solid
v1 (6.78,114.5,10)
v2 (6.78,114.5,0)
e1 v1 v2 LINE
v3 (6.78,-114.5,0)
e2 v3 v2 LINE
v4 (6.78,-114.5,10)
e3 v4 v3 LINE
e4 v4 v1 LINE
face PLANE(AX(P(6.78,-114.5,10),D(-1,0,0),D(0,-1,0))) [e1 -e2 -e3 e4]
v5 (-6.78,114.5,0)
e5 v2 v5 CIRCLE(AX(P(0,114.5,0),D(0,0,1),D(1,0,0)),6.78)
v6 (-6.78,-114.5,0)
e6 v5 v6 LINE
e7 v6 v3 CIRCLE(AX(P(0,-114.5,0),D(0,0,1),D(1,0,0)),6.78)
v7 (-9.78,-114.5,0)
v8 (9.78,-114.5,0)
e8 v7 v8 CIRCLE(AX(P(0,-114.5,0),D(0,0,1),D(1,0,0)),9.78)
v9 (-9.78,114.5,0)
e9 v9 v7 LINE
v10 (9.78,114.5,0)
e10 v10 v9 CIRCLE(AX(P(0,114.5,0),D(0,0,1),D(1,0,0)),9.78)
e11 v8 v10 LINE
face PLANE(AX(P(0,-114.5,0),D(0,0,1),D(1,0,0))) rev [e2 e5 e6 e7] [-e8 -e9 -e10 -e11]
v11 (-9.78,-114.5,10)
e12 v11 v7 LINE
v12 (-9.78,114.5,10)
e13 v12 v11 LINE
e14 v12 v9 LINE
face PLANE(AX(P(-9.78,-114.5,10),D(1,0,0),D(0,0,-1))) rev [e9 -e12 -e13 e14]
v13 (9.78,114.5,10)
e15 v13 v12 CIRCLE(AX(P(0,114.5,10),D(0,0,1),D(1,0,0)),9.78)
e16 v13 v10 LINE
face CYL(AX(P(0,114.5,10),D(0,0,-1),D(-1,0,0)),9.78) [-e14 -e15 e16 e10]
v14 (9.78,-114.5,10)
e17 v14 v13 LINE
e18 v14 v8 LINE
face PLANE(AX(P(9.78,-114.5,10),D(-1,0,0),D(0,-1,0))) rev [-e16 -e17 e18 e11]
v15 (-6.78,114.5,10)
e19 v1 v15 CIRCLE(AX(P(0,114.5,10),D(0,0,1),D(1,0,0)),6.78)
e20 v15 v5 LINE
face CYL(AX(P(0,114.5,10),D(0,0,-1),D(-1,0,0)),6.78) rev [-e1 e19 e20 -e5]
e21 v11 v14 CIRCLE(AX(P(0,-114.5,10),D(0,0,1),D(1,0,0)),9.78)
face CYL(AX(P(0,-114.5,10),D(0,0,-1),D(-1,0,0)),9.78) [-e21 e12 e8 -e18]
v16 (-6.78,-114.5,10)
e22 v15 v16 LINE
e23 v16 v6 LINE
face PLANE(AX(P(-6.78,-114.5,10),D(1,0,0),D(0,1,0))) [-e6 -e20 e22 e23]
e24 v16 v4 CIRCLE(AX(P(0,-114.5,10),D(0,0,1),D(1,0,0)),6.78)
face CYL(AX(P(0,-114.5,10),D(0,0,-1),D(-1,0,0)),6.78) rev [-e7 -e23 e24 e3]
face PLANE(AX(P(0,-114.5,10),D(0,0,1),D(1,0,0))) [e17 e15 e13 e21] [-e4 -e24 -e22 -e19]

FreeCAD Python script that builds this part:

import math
import FreeCAD as App
import Part
import Sketcher

V = App.Vector
Q = App.Units.Quantity

doc = App.newDocument("Part")
body = doc.addObject("PartDesign::Body", "Body")

sketch1 = body.newObject("Sketcher::SketchObject", "Sketch")
sketch1.AttachmentSupport = (doc.getObject("XY_Plane"), [""])
sketch1.MapMode = "FlatFace"
sketch1.addGeometry([
    Part.LineSegment(V(-10, 114, 0), V(-10, -114, 0)),
    Part.ArcOfCircle(Part.Circle(V(0, -114, 0), V(0, 0, 1), 10), math.radians(180), math.radians(360)),
    Part.LineSegment(V(10, -114, 0), V(10, 114, 0)),
    Part.ArcOfCircle(Part.Circle(V(0, 114, 0), V(0, 0, 1), 10), math.radians(0), math.radians(180)),
    Part.LineSegment(V(-7, -114, 0), V(-7, 114, 0)),
    Part.ArcOfCircle(Part.Circle(V(0, 114, 0), V(0, 0, 1), 7), math.radians(0), math.radians(180)),
    Part.LineSegment(V(7, 114, 0), V(7, -114, 0)),
    Part.ArcOfCircle(Part.Circle(V(0, -114, 0), V(0, 0, 1), 7), math.radians(180), math.radians(360)),
], False)
sketch1.addConstraint([
    Sketcher.Constraint("Tangent", 0, 2, 1, 1),
    Sketcher.Constraint("Tangent", 1, 2, 2, 1),
    Sketcher.Constraint("Tangent", 2, 2, 3, 1),
    Sketcher.Constraint("Tangent", 3, 2, 0, 1),
    Sketcher.Constraint("Tangent", 4, 2, 5, 2),
    Sketcher.Constraint("Tangent", 5, 1, 6, 1),
    Sketcher.Constraint("Tangent", 6, 2, 7, 2),
    Sketcher.Constraint("Tangent", 7, 1, 4, 1),
    Sketcher.Constraint("Vertical", 0),
    Sketcher.Constraint("Vertical", 2),
    Sketcher.Constraint("Vertical", 4),
    Sketcher.Constraint("Vertical", 6),
    Sketcher.Constraint("Coincident", 5, 3, 3, 3),
    Sketcher.Constraint("Symmetric", 1, 3, 3, 3, -1, 1),
    Sketcher.Constraint("Horizontal", 7, 3, 0, 2),
    Sketcher.Constraint("DistanceY", 0, 2, 0, 1, Q("229 mm")),
    Sketcher.Constraint("Radius", 1, Q("9.78 mm")),
    Sketcher.Constraint("Radius", 5, Q("6.78 mm")),
])
pad1 = body.newObject("PartDesign::Pad", "Pad")
pad1.Profile = sketch1
pad1.Length = 10

doc.recompute()
